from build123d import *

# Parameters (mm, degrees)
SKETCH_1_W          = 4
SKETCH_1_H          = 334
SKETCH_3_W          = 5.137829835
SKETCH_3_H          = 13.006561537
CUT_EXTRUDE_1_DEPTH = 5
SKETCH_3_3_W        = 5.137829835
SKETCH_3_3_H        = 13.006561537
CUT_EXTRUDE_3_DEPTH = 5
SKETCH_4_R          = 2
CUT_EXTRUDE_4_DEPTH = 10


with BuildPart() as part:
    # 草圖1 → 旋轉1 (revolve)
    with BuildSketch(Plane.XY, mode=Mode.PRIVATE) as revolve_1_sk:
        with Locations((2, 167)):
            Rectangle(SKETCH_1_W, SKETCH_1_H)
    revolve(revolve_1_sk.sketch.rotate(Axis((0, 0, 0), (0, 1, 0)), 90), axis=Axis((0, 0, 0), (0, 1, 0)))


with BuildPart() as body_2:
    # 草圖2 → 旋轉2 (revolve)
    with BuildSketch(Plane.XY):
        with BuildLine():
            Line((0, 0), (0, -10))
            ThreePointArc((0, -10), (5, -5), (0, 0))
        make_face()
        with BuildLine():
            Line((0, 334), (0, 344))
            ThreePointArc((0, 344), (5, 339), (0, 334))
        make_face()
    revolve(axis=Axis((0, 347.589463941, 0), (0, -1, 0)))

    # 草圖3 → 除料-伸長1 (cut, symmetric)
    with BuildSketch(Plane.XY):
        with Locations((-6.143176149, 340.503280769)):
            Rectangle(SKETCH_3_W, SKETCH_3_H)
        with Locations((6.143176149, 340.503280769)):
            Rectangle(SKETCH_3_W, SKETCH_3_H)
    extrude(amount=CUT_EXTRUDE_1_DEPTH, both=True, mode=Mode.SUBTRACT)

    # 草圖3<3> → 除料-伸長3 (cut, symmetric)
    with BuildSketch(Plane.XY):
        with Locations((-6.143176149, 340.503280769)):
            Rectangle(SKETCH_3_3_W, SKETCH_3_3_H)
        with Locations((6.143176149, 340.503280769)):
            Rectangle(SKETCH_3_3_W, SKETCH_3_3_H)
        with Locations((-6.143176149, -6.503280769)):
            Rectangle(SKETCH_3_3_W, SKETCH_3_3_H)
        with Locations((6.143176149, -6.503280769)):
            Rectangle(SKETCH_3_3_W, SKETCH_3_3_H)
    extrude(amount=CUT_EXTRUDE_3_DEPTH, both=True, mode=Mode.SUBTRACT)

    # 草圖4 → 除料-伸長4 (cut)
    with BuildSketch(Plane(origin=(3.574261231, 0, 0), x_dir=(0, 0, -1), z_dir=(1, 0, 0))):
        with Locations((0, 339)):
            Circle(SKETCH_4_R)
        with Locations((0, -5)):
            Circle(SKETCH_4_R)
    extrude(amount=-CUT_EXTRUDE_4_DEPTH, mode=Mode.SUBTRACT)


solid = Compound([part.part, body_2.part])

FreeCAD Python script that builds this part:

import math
import FreeCAD as App
import Part
import Sketcher

doc = App.newDocument("Part")
body = doc.addObject("PartDesign::Body", "Body")

# Sketch on XY plane
sketch1 = body.newObject("Sketcher::SketchObject", "Sketch")
sketch1.AttachmentSupport = (doc.getObject("XY_Plane"), [""])
sketch1.MapMode = "FlatFace"
sketch1.addGeometry([
    Part.LineSegment(App.Vector(0, 334, 0), App.Vector(0, 0, 0)),
    Part.LineSegment(App.Vector(0, 0, 0), App.Vector(4, 0, 0)),
    Part.LineSegment(App.Vector(4, 0, 0), App.Vector(4, 334, 0)),
    Part.LineSegment(App.Vector(4, 334, 0), App.Vector(0, 334, 0)),
], False)
sketch1.addConstraint([
    Sketcher.Constraint("Coincident", 0, 2, 1, 1),
    Sketcher.Constraint("Coincident", 1, 2, 2, 1),
    Sketcher.Constraint("Coincident", 2, 2, 3, 1),
    Sketcher.Constraint("Coincident", 3, 2, 0, 1),
    Sketcher.Constraint("Vertical", 0),
    Sketcher.Constraint("Horizontal", 1),
    Sketcher.Constraint("Vertical", 2),
    Sketcher.Constraint("Horizontal", 3),
    Sketcher.Constraint("Coincident", 0, 2, -1, 1),
    Sketcher.Constraint("DistanceX", 1, 1, 1, 2, 4.0),
    Sketcher.Constraint("DistanceY", 0, 2, 0, 1, 334.0),
])
revolution = body.newObject("PartDesign::Revolution", "Revolution")
revolution.Profile = sketch1
revolution.ReferenceAxis = (sketch1, ["V_Axis"])
revolution.Angle = 360
body2 = doc.addObject("PartDesign::Body", "Body001")
body2.AllowCompound = True

# Sketch on XY plane
sketch2 = body2.newObject("Sketcher::SketchObject", "Sketch001")
sketch2.AttachmentSupport = (doc.getObject("XY_Plane001"), [""])
sketch2.MapMode = "FlatFace"
sketch2.addGeometry([
    Part.LineSegment(App.Vector(0, 0, 0), App.Vector(0, -10, 0)),
    Part.ArcOfCircle(Part.Circle(App.Vector(0, -5, 0), App.Vector(0, 0, 1), 5), math.radians(-90), math.radians(90)),
    Part.LineSegment(App.Vector(0, 344, 0), App.Vector(0, 334, 0)),
    Part.ArcOfCircle(Part.Circle(App.Vector(0, 339, 0), App.Vector(0, 0, 1), 5), math.radians(-90), math.radians(90)),
], False)
sketch2.addConstraint([
    Sketcher.Constraint("Coincident", 0, 1, 1, 2),
    Sketcher.Constraint("Coincident", 1, 1, 0, 2),
    Sketcher.Constraint("Coincident", 2, 1, 3, 2),
    Sketcher.Constraint("Coincident", 3, 1, 2, 2),
    Sketcher.Constraint("Vertical", 0),
    Sketcher.Constraint("Vertical", 2),
    Sketcher.Constraint("Coincident", 0, 1, -1, 1),
    Sketcher.Constraint("Equal", 1, 3),
    Sketcher.Constraint("PointOnObject", 1, 3, -2),
    Sketcher.Constraint("PointOnObject", 3, 3, -2),
    Sketcher.Constraint("PointOnObject", 2, 1, -2),
    Sketcher.Constraint("Radius", 1, 5.0),
    Sketcher.Constraint("DistanceY", -1, 1, 3, 3, 339.0),
])
revolution2 = body2.newObject("PartDesign::Revolution", "Revolution001")
revolution2.Profile = sketch2
revolution2.ReferenceAxis = (sketch2, ["V_Axis"])
revolution2.Angle = 360

# Sketch on XY plane
sketch3 = body2.newObject("Sketcher::SketchObject", "Sketch002")
sketch3.AttachmentSupport = (doc.getObject("XY_Plane001"), [""])
sketch3.MapMode = "FlatFace"
sketch3.addGeometry([
    Part.LineSegment(App.Vector(-9, 347, 0), App.Vector(-9, 334, 0)),  # 0
    Part.LineSegment(App.Vector(-9, 334, 0), App.Vector(-4, 334, 0)),  # 1
    Part.LineSegment(App.Vector(-4, 334, 0), App.Vector(-4, 347, 0)),  # 2
    Part.LineSegment(App.Vector(-4, 347, 0), App.Vector(-9, 347, 0)),  # 3
    Part.LineSegment(App.Vector(4, 347, 0), App.Vector(4, 334, 0)),  # 4
    Part.LineSegment(App.Vector(4, 334, 0), App.Vector(9, 334, 0)),  # 5
    Part.LineSegment(App.Vector(9, 334, 0), App.Vector(9, 347, 0)),  # 6
    Part.LineSegment(App.Vector(9, 347, 0), App.Vector(4, 347, 0)),  # 7
], False)
sketch3.addConstraint([
    Sketcher.Constraint("Coincident", 0, 2, 1, 1),
    Sketcher.Constraint("Coincident", 1, 2, 2, 1),
    Sketcher.Constraint("Coincident", 2, 2, 3, 1),
    Sketcher.Constraint("Coincident", 3, 2, 0, 1),
    Sketcher.Constraint("Coincident", 4, 2, 5, 1),
    Sketcher.Constraint("Coincident", 5, 2, 6, 1),
    Sketcher.Constraint("Coincident", 6, 2, 7, 1),
    Sketcher.Constraint("Coincident", 7, 2, 4, 1),
    Sketcher.Constraint("Vertical", 0),
    Sketcher.Constraint("Horizontal", 1),
    Sketcher.Constraint("Vertical", 2),
    Sketcher.Constraint("Horizontal", 3),
    Sketcher.Constraint("Vertical", 4),
    Sketcher.Constraint("Horizontal", 5),
    Sketcher.Constraint("Vertical", 6),
    Sketcher.Constraint("Horizontal", 7),
    Sketcher.Constraint("Symmetric", 1, 2, 4, 2, -2),
    Sketcher.Constraint("Symmetric", 3, 2, 6, 2, -2),
    Sketcher.Constraint("DistanceY", -1, 1, 0, 2, 334.0),
    Sketcher.Constraint("DistanceX", 1, 1, 1, 2, 5.13783),
    Sketcher.Constraint("DistanceY", 0, 2, 0, 1, 13.006562),
    Sketcher.Constraint("DistanceX", 0, 2, -1, 1, 8.712091),
])
pocket1 = body2.newObject("PartDesign::Pocket", "Pocket")
pocket1.Profile = sketch3
pocket1.Length = 10
pocket1.Midplane = True

# Sketch on XY plane
sketch4 = body2.newObject("Sketcher::SketchObject", "Sketch003")
sketch4.AttachmentSupport = (doc.getObject("XY_Plane001"), [""])
sketch4.MapMode = "FlatFace"
sketch4.addGeometry([
    Part.LineSegment(App.Vector(-9, 347, 0), App.Vector(-9, 334, 0)),  # 0
    Part.LineSegment(App.Vector(-9, 334, 0), App.Vector(-4, 334, 0)),  # 1
    Part.LineSegment(App.Vector(-4, 334, 0), App.Vector(-4, 347, 0)),  # 2
    Part.LineSegment(App.Vector(-4, 347, 0), App.Vector(-9, 347, 0)),  # 3
    Part.LineSegment(App.Vector(4, 347, 0), App.Vector(4, 334, 0)),  # 4
    Part.LineSegment(App.Vector(4, 334, 0), App.Vector(9, 334, 0)),  # 5
    Part.LineSegment(App.Vector(9, 334, 0), App.Vector(9, 347, 0)),  # 6
    Part.LineSegment(App.Vector(9, 347, 0), App.Vector(4, 347, 0)),  # 7
    Part.LineSegment(App.Vector(-9, 0, 0), App.Vector(-9, -13, 0)),  # 8
    Part.LineSegment(App.Vector(-9, -13, 0), App.Vector(-4, -13, 0)),  # 9
    Part.LineSegment(App.Vector(-4, -13, 0), App.Vector(-4, 0, 0)),  # 10
    Part.LineSegment(App.Vector(-4, 0, 0), App.Vector(-9, 0, 0)),  # 11
    Part.LineSegment(App.Vector(4, 0, 0), App.Vector(4, -13, 0)),  # 12
    Part.LineSegment(App.Vector(4, -13, 0), App.Vector(9, -13, 0)),  # 13
    Part.LineSegment(App.Vector(9, -13, 0), App.Vector(9, 0, 0)),  # 14
    Part.LineSegment(App.Vector(9, 0, 0), App.Vector(4, 0, 0)),  # 15
], False)
sketch4.addConstraint([
    Sketcher.Constraint("Coincident", 0, 2, 1, 1),
    Sketcher.Constraint("Coincident", 1, 2, 2, 1),
    Sketcher.Constraint("Coincident", 2, 2, 3, 1),
    Sketcher.Constraint("Coincident", 3, 2, 0, 1),
    Sketcher.Constraint("Coincident", 4, 2, 5, 1),
    Sketcher.Constraint("Coincident", 5, 2, 6, 1),
    Sketcher.Constraint("Coincident", 6, 2, 7, 1),
    Sketcher.Constraint("Coincident", 7, 2, 4, 1),
    Sketcher.Constraint("Coincident", 8, 2, 9, 1),
    Sketcher.Constraint("Coincident", 9, 2, 10, 1),
    Sketcher.Constraint("Coincident", 10, 2, 11, 1),
    Sketcher.Constraint("Coincident", 11, 2, 8, 1),
    Sketcher.Constraint("Coincident", 12, 2, 13, 1),
    Sketcher.Constraint("Coincident", 13, 2, 14, 1),
    Sketcher.Constraint("Coincident", 14, 2, 15, 1),
    Sketcher.Constraint("Coincident", 15, 2, 12, 1),
    Sketcher.Constraint("Vertical", 0),
    Sketcher.Constraint("Horizontal", 1),
    Sketcher.Constraint("Vertical", 2),
    Sketcher.Constraint("Horizontal", 3),
    Sketcher.Constraint("Vertical", 4),
    Sketcher.Constraint("Horizontal", 5),
    Sketcher.Constraint("Vertical", 6),
    Sketcher.Constraint("Horizontal", 7),
    Sketcher.Constraint("Vertical", 8),
    Sketcher.Constraint("Horizontal", 9),
    Sketcher.Constraint("Vertical", 10),
    Sketcher.Constraint("Horizontal", 11),
    Sketcher.Constraint("Vertical", 12),
    Sketcher.Constraint("Horizontal", 13),
    Sketcher.Constraint("Vertical", 14),
    Sketcher.Constraint("Horizontal", 15),
    Sketcher.Constraint("Symmetric", 11, 2, 14, 2, -1, 1),
    Sketcher.Constraint("Symmetric", 1, 2, 4, 2, -2),
    Sketcher.Constraint("Symmetric", 3, 2, 6, 2, -2),
    Sketcher.Constraint("Symmetric", 9, 2, 12, 2, -2),
    Sketcher.Constraint("PointOnObject", 10, 2, -1),
    Sketcher.Constraint("Vertical", 3, 2, 8, 2),
    Sketcher.Constraint("Vertical", 2, 2, 9, 2),
    Sketcher.Constraint("Equal", 6, 8),
    Sketcher.Constraint("DistanceY", -1, 1, 0, 2, 334.0),
    Sketcher.Constraint("DistanceX", 1, 1, 1, 2, 5.13783),
    Sketcher.Constraint("DistanceY", 0, 2, 0, 1, 13.006562),
    Sketcher.Constraint("DistanceX", 0, 2, -1, 1, 8.712091),
])
pocket2 = body2.newObject("PartDesign::Pocket", "Pocket001")
pocket2.Profile = sketch4
pocket2.Length = 10
pocket2.Midplane = True

# Sketch on YZ plane
sketch5 = body2.newObject("Sketcher::SketchObject", "Sketch004")
sketch5.AttachmentSupport = (doc.getObject("YZ_Plane001"), [""])
sketch5.MapMode = "FlatFace"
sketch5.AttachmentOffset = App.Placement(App.Vector(0, 0, 3.574261), App.Rotation())
sketch5.addGeometry([
    Part.Circle(App.Vector(339, 0, 0), App.Vector(0, 0, 1), 2),
    Part.Circle(App.Vector(-5, 0, 0), App.Vector(0, 0, 1), 2),
], False)
sketch5.addConstraint([
    Sketcher.Constraint("Equal", 0, 1),
    Sketcher.Constraint("PointOnObject", 0, 3, -1),
    Sketcher.Constraint("PointOnObject", 1, 3, -1),
    Sketcher.Constraint("Diameter", 0, 4.0),
    Sketcher.Constraint("DistanceX", -1, 1, 0, 3, 339.0),
    Sketcher.Constraint("DistanceX", 1, 3, -1, 1, 5.0),
])
pocket3 = body2.newObject("PartDesign::Pocket", "Pocket002")
pocket3.Profile = sketch5
pocket3.Length = 10

doc.recompute()
